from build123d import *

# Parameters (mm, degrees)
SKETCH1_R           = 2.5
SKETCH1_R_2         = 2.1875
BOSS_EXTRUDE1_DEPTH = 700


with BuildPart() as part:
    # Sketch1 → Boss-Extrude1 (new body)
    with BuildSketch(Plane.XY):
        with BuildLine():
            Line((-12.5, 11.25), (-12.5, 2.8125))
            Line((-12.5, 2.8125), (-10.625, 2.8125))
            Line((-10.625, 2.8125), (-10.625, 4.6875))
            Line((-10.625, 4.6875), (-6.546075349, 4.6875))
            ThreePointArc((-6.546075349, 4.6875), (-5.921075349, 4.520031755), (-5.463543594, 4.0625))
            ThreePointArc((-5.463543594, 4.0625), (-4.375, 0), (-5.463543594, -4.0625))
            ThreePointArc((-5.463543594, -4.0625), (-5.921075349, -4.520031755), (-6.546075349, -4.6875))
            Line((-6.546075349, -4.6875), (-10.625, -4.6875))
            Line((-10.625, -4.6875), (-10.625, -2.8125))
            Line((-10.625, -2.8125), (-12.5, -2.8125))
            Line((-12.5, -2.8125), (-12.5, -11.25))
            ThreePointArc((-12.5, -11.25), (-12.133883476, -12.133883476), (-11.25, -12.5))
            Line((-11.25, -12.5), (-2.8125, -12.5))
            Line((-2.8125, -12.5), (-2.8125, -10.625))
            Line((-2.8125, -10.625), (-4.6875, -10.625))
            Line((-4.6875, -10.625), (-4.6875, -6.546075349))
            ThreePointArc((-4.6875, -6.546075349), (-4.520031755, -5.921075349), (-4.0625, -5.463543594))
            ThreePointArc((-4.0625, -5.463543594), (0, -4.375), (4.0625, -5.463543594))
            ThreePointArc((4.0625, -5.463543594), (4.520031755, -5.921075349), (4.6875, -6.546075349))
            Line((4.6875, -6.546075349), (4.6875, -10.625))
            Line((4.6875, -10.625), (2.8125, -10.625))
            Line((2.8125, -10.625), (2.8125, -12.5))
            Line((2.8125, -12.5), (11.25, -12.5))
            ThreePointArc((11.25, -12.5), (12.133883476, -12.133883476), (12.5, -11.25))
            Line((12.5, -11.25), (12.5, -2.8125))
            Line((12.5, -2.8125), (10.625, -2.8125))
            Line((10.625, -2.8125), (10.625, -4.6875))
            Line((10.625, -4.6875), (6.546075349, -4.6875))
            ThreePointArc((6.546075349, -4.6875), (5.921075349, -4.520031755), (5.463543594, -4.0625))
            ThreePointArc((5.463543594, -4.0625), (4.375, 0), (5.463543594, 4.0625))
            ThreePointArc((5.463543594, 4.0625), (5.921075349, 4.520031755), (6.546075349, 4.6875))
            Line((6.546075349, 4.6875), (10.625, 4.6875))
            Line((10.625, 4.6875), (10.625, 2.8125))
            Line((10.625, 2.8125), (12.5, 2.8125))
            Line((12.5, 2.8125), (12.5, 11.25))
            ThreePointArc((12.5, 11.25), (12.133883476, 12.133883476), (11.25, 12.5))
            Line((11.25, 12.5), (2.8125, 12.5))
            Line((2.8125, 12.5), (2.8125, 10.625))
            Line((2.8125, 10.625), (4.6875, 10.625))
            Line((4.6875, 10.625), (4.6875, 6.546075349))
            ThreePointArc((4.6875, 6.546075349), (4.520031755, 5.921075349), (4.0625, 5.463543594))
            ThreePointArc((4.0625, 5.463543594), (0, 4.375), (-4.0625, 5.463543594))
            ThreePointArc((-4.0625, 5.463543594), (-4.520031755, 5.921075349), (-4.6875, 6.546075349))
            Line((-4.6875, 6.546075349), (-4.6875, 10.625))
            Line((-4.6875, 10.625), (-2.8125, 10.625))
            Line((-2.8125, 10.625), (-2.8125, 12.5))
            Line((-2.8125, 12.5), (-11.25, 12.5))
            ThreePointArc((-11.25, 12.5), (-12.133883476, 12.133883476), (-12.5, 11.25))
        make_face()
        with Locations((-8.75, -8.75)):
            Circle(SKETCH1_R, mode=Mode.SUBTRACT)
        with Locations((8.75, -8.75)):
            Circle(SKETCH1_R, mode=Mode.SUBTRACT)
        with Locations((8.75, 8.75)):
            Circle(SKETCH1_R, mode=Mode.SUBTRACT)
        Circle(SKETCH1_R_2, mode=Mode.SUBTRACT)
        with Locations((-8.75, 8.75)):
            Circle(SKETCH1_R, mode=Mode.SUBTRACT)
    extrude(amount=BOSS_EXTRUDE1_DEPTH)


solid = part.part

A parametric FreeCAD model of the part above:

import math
import FreeCAD as App
import Part
import Sketcher

V = App.Vector
Q = App.Units.Quantity

doc = App.newDocument("Part")
body = doc.addObject("PartDesign::Body", "Body")

sketch1 = doc.addObject("Sketcher::SketchObject", "Sketch")
body.addObject(sketch1)
sketch1.AttachmentSupport = (doc.XY_Plane, [""])
sketch1.MapMode = "FlatFace"
sketch1.addGeometry(Part.LineSegment(V(-12.5, 11.2, 0), V(-12.5, 2.8, 0)), False)
sketch1.addGeometry(Part.LineSegment(V(-12.5, 2.8, 0), V(-10.6, 2.8, 0)), False)
sketch1.addGeometry(Part.LineSegment(V(-10.6, 2.8, 0), V(-10.6, 4.7, 0)), False)
sketch1.addGeometry(Part.LineSegment(V(-10.6, 4.7, 0), V(-6.5, 4.7, 0)), False)
sketch1.addGeometry(Part.ArcOfCircle(Part.Circle(V(-6.5, 3.4, 0), V(0, 0, 1), 1.2), math.radians(30), math.radians(90)), False)
sketch1.addGeometry(Part.ArcOfCircle(Part.Circle(V(-12.5, 0, 0), V(0, 0, 1), 8.1), math.radians(-30), math.radians(30)), False)
sketch1.addGeometry(Part.ArcOfCircle(Part.Circle(V(-6.5, -3.4, 0), V(0, 0, 1), 1.2), math.radians(-90), math.radians(-30)), False)
sketch1.addGeometry(Part.LineSegment(V(-6.5, -4.7, 0), V(-10.6, -4.7, 0)), False)
sketch1.addGeometry(Part.LineSegment(V(-10.6, -4.7, 0), V(-10.6, -2.8, 0)), False)
sketch1.addGeometry(Part.LineSegment(V(-10.6, -2.8, 0), V(-12.5, -2.8, 0)), False)
sketch1.addGeometry(Part.LineSegment(V(-12.5, -2.8, 0), V(-12.5, -11.2, 0)), False)
sketch1.addGeometry(Part.ArcOfCircle(Part.Circle(V(-11.2, -11.2, 0), V(0, 0, 1), 1.3), math.radians(-180), math.radians(-90)), False)
sketch1.addGeometry(Part.LineSegment(V(-11.2, -12.5, 0), V(-2.8, -12.5, 0)), False)
sketch1.addGeometry(Part.LineSegment(V(-2.8, -12.5, 0), V(-2.8, -10.6, 0)), False)
sketch1.addGeometry(Part.LineSegment(V(-2.8, -10.6, 0), V(-4.7, -10.6, 0)), False)
sketch1.addGeometry(Part.LineSegment(V(-4.7, -10.6, 0), V(-4.7, -6.5, 0)), False)
sketch1.addGeometry(Part.ArcOfCircle(Part.Circle(V(-3.4, -6.5, 0), V(0, 0, 1), 1.2), math.radians(120), math.radians(180)), False)
sketch1.addGeometry(Part.ArcOfCircle(Part.Circle(V(0, -12.5, 0), V(0, 0, 1), 8.1), math.radians(60), math.radians(120)), False)
sketch1.addGeometry(Part.ArcOfCircle(Part.Circle(V(3.4, -6.5, 0), V(0, 0, 1), 1.2), math.radians(0), math.radians(60)), False)
sketch1.addGeometry(Part.LineSegment(V(4.7, -6.5, 0), V(4.7, -10.6, 0)), False)
sketch1.addGeometry(Part.LineSegment(V(4.7, -10.6, 0), V(2.8, -10.6, 0)), False)
sketch1.addGeometry(Part.LineSegment(V(2.8, -10.6, 0), V(2.8, -12.5, 0)), False)
sketch1.addGeometry(Part.LineSegment(V(2.8, -12.5, 0), V(11.2, -12.5, 0)), False)
sketch1.addGeometry(Part.ArcOfCircle(Part.Circle(V(11.2, -11.2, 0), V(0, 0, 1), 1.3), math.radians(-90), math.radians(0)), False)
sketch1.addGeometry(Part.LineSegment(V(12.5, -11.2, 0), V(12.5, -2.8, 0)), False)
sketch1.addGeometry(Part.LineSegment(V(12.5, -2.8, 0), V(10.6, -2.8, 0)), False)
sketch1.addGeometry(Part.LineSegment(V(10.6, -2.8, 0), V(10.6, -4.7, 0)), False)
sketch1.addGeometry(Part.LineSegment(V(10.6, -4.7, 0), V(6.5, -4.7, 0)), False)
sketch1.addGeometry(Part.ArcOfCircle(Part.Circle(V(6.5, -3.4, 0), V(0, 0, 1), 1.2), math.radians(-150), math.radians(-90)), False)
sketch1.addGeometry(Part.ArcOfCircle(Part.Circle(V(12.5, 0, 0), V(0, 0, 1), 8.1), math.radians(150), math.radians(210)), False)
sketch1.addGeometry(Part.ArcOfCircle(Part.Circle(V(6.5, 3.4, 0), V(0, 0, 1), 1.2), math.radians(90), math.radians(150)), False)
sketch1.addGeometry(Part.LineSegment(V(6.5, 4.7, 0), V(10.6, 4.7, 0)), False)
sketch1.addGeometry(Part.LineSegment(V(10.6, 4.7, 0), V(10.6, 2.8, 0)), False)
sketch1.addGeometry(Part.LineSegment(V(10.6, 2.8, 0), V(12.5, 2.8, 0)), False)
sketch1.addGeometry(Part.LineSegment(V(12.5, 2.8, 0), V(12.5, 11.2, 0)), False)
sketch1.addGeometry(Part.ArcOfCircle(Part.Circle(V(11.2, 11.2, 0), V(0, 0, 1), 1.3), math.radians(0), math.radians(90)), False)
sketch1.addGeometry(Part.LineSegment(V(11.2, 12.5, 0), V(2.8, 12.5, 0)), False)
sketch1.addGeometry(Part.LineSegment(V(2.8, 12.5, 0), V(2.8, 10.6, 0)), False)
sketch1.addGeometry(Part.LineSegment(V(2.8, 10.6, 0), V(4.7, 10.6, 0)), False)
sketch1.addGeometry(Part.LineSegment(V(4.7, 10.6, 0), V(4.7, 6.5, 0)), False)
sketch1.addGeometry(Part.ArcOfCircle(Part.Circle(V(3.4, 6.5, 0), V(0, 0, 1), 1.2), math.radians(-60), math.radians(0)), False)
sketch1.addGeometry(Part.ArcOfCircle(Part.Circle(V(0, 12.5, 0), V(0, 0, 1), 8.1), math.radians(-120), math.radians(-60)), False)
sketch1.addGeometry(Part.ArcOfCircle(Part.Circle(V(-3.4, 6.5, 0), V(0, 0, 1), 1.2), math.radians(180), math.radians(240)), False)
sketch1.addGeometry(Part.LineSegment(V(-4.7, 6.5, 0), V(-4.7, 10.6, 0)), False)
sketch1.addGeometry(Part.LineSegment(V(-4.7, 10.6, 0), V(-2.8, 10.6, 0)), False)
sketch1.addGeometry(Part.LineSegment(V(-2.8, 10.6, 0), V(-2.8, 12.5, 0)), False)
sketch1.addGeometry(Part.LineSegment(V(-2.8, 12.5, 0), V(-11.2, 12.5, 0)), False)
sketch1.addGeometry(Part.ArcOfCircle(Part.Circle(V(-11.2, 11.2, 0), V(0, 0, 1), 1.3), math.radians(90), math.radians(180)), False)
sketch1.addGeometry(Part.Circle(V(-8.8, -8.8, 0), V(0, 0, 1), 2.5), False)
sketch1.addGeometry(Part.Circle(V(8.8, -8.8, 0), V(0, 0, 1), 2.5), False)
sketch1.addGeometry(Part.Circle(V(-8.8, 8.8, 0), V(0, 0, 1), 2.5), False)
sketch1.addGeometry(Part.Circle(V(0, 0, 0), V(0, 0, 1), 2.2), False)
sketch1.addGeometry(Part.Circle(V(8.8, 8.8, 0), V(0, 0, 1), 2.5), False)
sketch1.addConstraint(Sketcher.Constraint("Coincident", 0, 2, 1, 1))
sketch1.addConstraint(Sketcher.Constraint("Coincident", 1, 2, 2, 1))
sketch1.addConstraint(Sketcher.Constraint("Coincident", 2, 2, 3, 1))
sketch1.addConstraint(Sketcher.Constraint("Tangent", 3, 2, 4, 2))
sketch1.addConstraint(Sketcher.Constraint("Tangent", 4, 1, 5, 2))
sketch1.addConstraint(Sketcher.Constraint("Tangent", 5, 1, 6, 2))
sketch1.addConstraint(Sketcher.Constraint("Tangent", 6, 1, 7, 1))
sketch1.addConstraint(Sketcher.Constraint("Coincident", 7, 2, 8, 1))
sketch1.addConstraint(Sketcher.Constraint("Coincident", 8, 2, 9, 1))
sketch1.addConstraint(Sketcher.Constraint("Coincident", 9, 2, 10, 1))
sketch1.addConstraint(Sketcher.Constraint("Tangent", 10, 2, 11, 1))
sketch1.addConstraint(Sketcher.Constraint("Tangent", 11, 2, 12, 1))
sketch1.addConstraint(Sketcher.Constraint("Coincident", 12, 2, 13, 1))
sketch1.addConstraint(Sketcher.Constraint("Coincident", 13, 2, 14, 1))
sketch1.addConstraint(Sketcher.Constraint("Coincident", 14, 2, 15, 1))
sketch1.addConstraint(Sketcher.Constraint("Tangent", 15, 2, 16, 2))
sketch1.addConstraint(Sketcher.Constraint("Tangent", 16, 1, 17, 2))
sketch1.addConstraint(Sketcher.Constraint("Tangent", 17, 1, 18, 2))
sketch1.addConstraint(Sketcher.Constraint("Tangent", 18, 1, 19, 1))
sketch1.addConstraint(Sketcher.Constraint("Coincident", 19, 2, 20, 1))
sketch1.addConstraint(Sketcher.Constraint("Coincident", 20, 2, 21, 1))
sketch1.addConstraint(Sketcher.Constraint("Coincident", 21, 2, 22, 1))
sketch1.addConstraint(Sketcher.Constraint("Tangent", 22, 2, 23, 1))
sketch1.addConstraint(Sketcher.Constraint("Tangent", 23, 2, 24, 1))
sketch1.addConstraint(Sketcher.Constraint("Coincident", 24, 2, 25, 1))
sketch1.addConstraint(Sketcher.Constraint("Coincident", 25, 2, 26, 1))
sketch1.addConstraint(Sketcher.Constraint("Coincident", 26, 2, 27, 1))
sketch1.addConstraint(Sketcher.Constraint("Tangent", 27, 2, 28, 2))
sketch1.addConstraint(Sketcher.Constraint("Tangent", 28, 1, 29, 2))
sketch1.addConstraint(Sketcher.Constraint("Tangent", 29, 1, 30, 2))
sketch1.addConstraint(Sketcher.Constraint("Tangent", 30, 1, 31, 1))
sketch1.addConstraint(Sketcher.Constraint("Coincident", 31, 2, 32, 1))
sketch1.addConstraint(Sketcher.Constraint("Coincident", 32, 2, 33, 1))
sketch1.addConstraint(Sketcher.Constraint("Coincident", 33, 2, 34, 1))
sketch1.addConstraint(Sketcher.Constraint("Tangent", 34, 2, 35, 1))
sketch1.addConstraint(Sketcher.Constraint("Tangent", 35, 2, 36, 1))
sketch1.addConstraint(Sketcher.Constraint("Coincident", 36, 2, 37, 1))
sketch1.addConstraint(Sketcher.Constraint("Coincident", 37, 2, 38, 1))
sketch1.addConstraint(Sketcher.Constraint("Coincident", 38, 2, 39, 1))
sketch1.addConstraint(Sketcher.Constraint("Tangent", 39, 2, 40, 2))
sketch1.addConstraint(Sketcher.Constraint("Tangent", 40, 1, 41, 2))
sketch1.addConstraint(Sketcher.Constraint("Tangent", 41, 1, 42, 2))
sketch1.addConstraint(Sketcher.Constraint("Tangent", 42, 1, 43, 1))
sketch1.addConstraint(Sketcher.Constraint("Coincident", 43, 2, 44, 1))
sketch1.addConstraint(Sketcher.Constraint("Coincident", 44, 2, 45, 1))
sketch1.addConstraint(Sketcher.Constraint("Coincident", 45, 2, 46, 1))
sketch1.addConstraint(Sketcher.Constraint("Tangent", 46, 2, 47, 1))
sketch1.addConstraint(Sketcher.Constraint("Tangent", 47, 2, 0, 1))
sketch1.addConstraint(Sketcher.Constraint("Vertical", 0))
sketch1.addConstraint(Sketcher.Constraint("Horizontal", 1))
sketch1.addConstraint(Sketcher.Constraint("Vertical", 2))
sketch1.addConstraint(Sketcher.Constraint("Horizontal", 3))
sketch1.addConstraint(Sketcher.Constraint("Horizontal", 7))
sketch1.addConstraint(Sketcher.Constraint("Vertical", 8))
sketch1.addConstraint(Sketcher.Constraint("Horizontal", 9))
sketch1.addConstraint(Sketcher.Constraint("Vertical", 10))
sketch1.addConstraint(Sketcher.Constraint("Horizontal", 12))
sketch1.addConstraint(Sketcher.Constraint("Vertical", 13))
sketch1.addConstraint(Sketcher.Constraint("Horizontal", 14))
sketch1.addConstraint(Sketcher.Constraint("Vertical", 15))
sketch1.addConstraint(Sketcher.Constraint("Vertical", 19))
sketch1.addConstraint(Sketcher.Constraint("Horizontal", 20))
sketch1.addConstraint(Sketcher.Constraint("Vertical", 21))
sketch1.addConstraint(Sketcher.Constraint("Horizontal", 22))
sketch1.addConstraint(Sketcher.Constraint("Vertical", 24))
sketch1.addConstraint(Sketcher.Constraint("Horizontal", 25))
sketch1.addConstraint(Sketcher.Constraint("Vertical", 26))
sketch1.addConstraint(Sketcher.Constraint("Horizontal", 27))
sketch1.addConstraint(Sketcher.Constraint("Horizontal", 31))
sketch1.addConstraint(Sketcher.Constraint("Vertical", 32))
sketch1.addConstraint(Sketcher.Constraint("Horizontal", 33))
sketch1.addConstraint(Sketcher.Constraint("Vertical", 34))
sketch1.addConstraint(Sketcher.Constraint("Horizontal", 36))
sketch1.addConstraint(Sketcher.Constraint("Vertical", 37))
sketch1.addConstraint(Sketcher.Constraint("Horizontal", 38))
sketch1.addConstraint(Sketcher.Constraint("Vertical", 39))
sketch1.addConstraint(Sketcher.Constraint("Vertical", 43))
sketch1.addConstraint(Sketcher.Constraint("Horizontal", 44))
sketch1.addConstraint(Sketcher.Constraint("Vertical", 45))
sketch1.addConstraint(Sketcher.Constraint("Horizontal", 46))
sketch1.addConstraint(Sketcher.Constraint("Coincident", 51, 3, -1, 1))
sketch1.addConstraint(Sketcher.Constraint("Equal", 4, 6))
sketch1.addConstraint(Sketcher.Constraint("Equal", 6, 11))
sketch1.addConstraint(Sketcher.Constraint("Equal", 11, 16))
sketch1.addConstraint(Sketcher.Constraint("Equal", 5, 17))
sketch1.addConstraint(Sketcher.Constraint("Equal", 16, 18))
sketch1.addConstraint(Sketcher.Constraint("Equal", 18, 23))
sketch1.addConstraint(Sketcher.Constraint("Equal", 23, 28))
sketch1.addConstraint(Sketcher.Constraint("Equal", 17, 29))
sketch1.addConstraint(Sketcher.Constraint("Equal", 28, 30))
sketch1.addConstraint(Sketcher.Constraint("Equal", 30, 35))
sketch1.addConstraint(Sketcher.Constraint("Equal", 35, 40))
sketch1.addConstraint(Sketcher.Constraint("Equal", 29, 41))
sketch1.addConstraint(Sketcher.Constraint("Equal", 40, 42))
sketch1.addConstraint(Sketcher.Constraint("Equal", 42, 47))
sketch1.addConstraint(Sketcher.Constraint("Equal", 48, 49))
sketch1.addConstraint(Sketcher.Constraint("Equal", 49, 50))
sketch1.addConstraint(Sketcher.Constraint("Equal", 50, 52))
sketch1.addConstraint(Sketcher.Constraint("Symmetric", 4, 3, 28, 3, -1, 1))
sketch1.addConstraint(Sketcher.Constraint("Symmetric", 6, 3, 30, 3, -1, 1))
sketch1.addConstraint(Sketcher.Constraint("Symmetric", 11, 3, 35, 3, -1, 1))
sketch1.addConstraint(Sketcher.Constraint("Symmetric", 16, 3, 40, 3, -1, 1))
sketch1.addConstraint(Sketcher.Constraint("Symmetric", 18, 3, 42, 3, -1, 1))
sketch1.addConstraint(Sketcher.Constraint("Symmetric", 23, 3, 47, 3, -1, 1))
sketch1.addConstraint(Sketcher.Constraint("Symmetric", 49, 3, 50, 3, -1, 1))
sketch1.addConstraint(Sketcher.Constraint("Symmetric", 48, 3, 52, 3, -1, 1))
sketch1.addConstraint(Sketcher.Constraint("Symmetric", 1, 2, 25, 2, -1, 1))
sketch1.addConstraint(Sketcher.Constraint("Symmetric", 8, 2, 32, 2, -1, 1))
sketch1.addConstraint(Sketcher.Constraint("Symmetric", 13, 2, 37, 2, -1, 1))
sketch1.addConstraint(Sketcher.Constraint("Symmetric", 20, 2, 44, 2, -1, 1))
sketch1.addConstraint(Sketcher.Constraint("Symmetric", 16, 3, 18, 3, -2))
sketch1.addConstraint(Sketcher.Constraint("Symmetric", 11, 3, 23, 3, -2))
sketch1.addConstraint(Sketcher.Constraint("Symmetric", 6, 3, 28, 3, -2))
sketch1.addConstraint(Sketcher.Constraint("Symmetric", 48, 3, 49, 3, -2))
sketch1.addConstraint(Sketcher.Constraint("Symmetric", 13, 2, 20, 2, -2))
sketch1.addConstraint(Sketcher.Constraint("Symmetric", 8, 2, 25, 2, -2))
sketch1.addConstraint(Sketcher.Constraint("Horizontal", 17, 3, 11, 2))
sketch1.addConstraint(Sketcher.Constraint("Vertical", 5, 3, 0, 2))
sketch1.addConstraint(Sketcher.Constraint("Equal", 9, 14))
sketch1.addConstraint(Sketcher.Constraint("Equal", 46, 0))
sketch1.addConstraint(Sketcher.Constraint("Equal", 44, 2))
sketch1.addConstraint(Sketcher.Constraint("Equal", 8, 13))
sketch1.addConstraint(Sketcher.Constraint("Equal", 31, 15))
sketch1.addConstraint(Sketcher.Constraint("Diameter", 48, Q("5 mm")))
sketch1.addConstraint(Sketcher.Constraint("Radius", 4, Q("1.25 mm")))
sketch1.addConstraint(Sketcher.Constraint("Diameter", 51, Q("4.375 mm")))
sketch1.addConstraint(Sketcher.Constraint("Radius", 5, Q("8.125 mm")))
sketch1.addConstraint(Sketcher.Constraint("DistanceX", 5, 3, -1, 1, Q("12.5 mm")))
sketch1.addConstraint(Sketcher.Constraint("DistanceX", 1, 1, 1, 2, Q("1.875 mm")))
sketch1.addConstraint(Sketcher.Constraint("DistanceX", 48, 3, -1, 1, Q("8.75 mm")))
sketch1.addConstraint(Sketcher.Constraint("DistanceY", 48, 3, -1, 1, Q("8.75 mm")))
sketch1.addConstraint(Sketcher.Constraint("DistanceX", 12, 1, 12, 2, Q("8.4375 mm")))
pad1 = doc.addObject("PartDesign::Pad", "Pad")
body.addObject(pad1)
pad1.Profile = sketch1
pad1.Length = 700

doc.recompute()
